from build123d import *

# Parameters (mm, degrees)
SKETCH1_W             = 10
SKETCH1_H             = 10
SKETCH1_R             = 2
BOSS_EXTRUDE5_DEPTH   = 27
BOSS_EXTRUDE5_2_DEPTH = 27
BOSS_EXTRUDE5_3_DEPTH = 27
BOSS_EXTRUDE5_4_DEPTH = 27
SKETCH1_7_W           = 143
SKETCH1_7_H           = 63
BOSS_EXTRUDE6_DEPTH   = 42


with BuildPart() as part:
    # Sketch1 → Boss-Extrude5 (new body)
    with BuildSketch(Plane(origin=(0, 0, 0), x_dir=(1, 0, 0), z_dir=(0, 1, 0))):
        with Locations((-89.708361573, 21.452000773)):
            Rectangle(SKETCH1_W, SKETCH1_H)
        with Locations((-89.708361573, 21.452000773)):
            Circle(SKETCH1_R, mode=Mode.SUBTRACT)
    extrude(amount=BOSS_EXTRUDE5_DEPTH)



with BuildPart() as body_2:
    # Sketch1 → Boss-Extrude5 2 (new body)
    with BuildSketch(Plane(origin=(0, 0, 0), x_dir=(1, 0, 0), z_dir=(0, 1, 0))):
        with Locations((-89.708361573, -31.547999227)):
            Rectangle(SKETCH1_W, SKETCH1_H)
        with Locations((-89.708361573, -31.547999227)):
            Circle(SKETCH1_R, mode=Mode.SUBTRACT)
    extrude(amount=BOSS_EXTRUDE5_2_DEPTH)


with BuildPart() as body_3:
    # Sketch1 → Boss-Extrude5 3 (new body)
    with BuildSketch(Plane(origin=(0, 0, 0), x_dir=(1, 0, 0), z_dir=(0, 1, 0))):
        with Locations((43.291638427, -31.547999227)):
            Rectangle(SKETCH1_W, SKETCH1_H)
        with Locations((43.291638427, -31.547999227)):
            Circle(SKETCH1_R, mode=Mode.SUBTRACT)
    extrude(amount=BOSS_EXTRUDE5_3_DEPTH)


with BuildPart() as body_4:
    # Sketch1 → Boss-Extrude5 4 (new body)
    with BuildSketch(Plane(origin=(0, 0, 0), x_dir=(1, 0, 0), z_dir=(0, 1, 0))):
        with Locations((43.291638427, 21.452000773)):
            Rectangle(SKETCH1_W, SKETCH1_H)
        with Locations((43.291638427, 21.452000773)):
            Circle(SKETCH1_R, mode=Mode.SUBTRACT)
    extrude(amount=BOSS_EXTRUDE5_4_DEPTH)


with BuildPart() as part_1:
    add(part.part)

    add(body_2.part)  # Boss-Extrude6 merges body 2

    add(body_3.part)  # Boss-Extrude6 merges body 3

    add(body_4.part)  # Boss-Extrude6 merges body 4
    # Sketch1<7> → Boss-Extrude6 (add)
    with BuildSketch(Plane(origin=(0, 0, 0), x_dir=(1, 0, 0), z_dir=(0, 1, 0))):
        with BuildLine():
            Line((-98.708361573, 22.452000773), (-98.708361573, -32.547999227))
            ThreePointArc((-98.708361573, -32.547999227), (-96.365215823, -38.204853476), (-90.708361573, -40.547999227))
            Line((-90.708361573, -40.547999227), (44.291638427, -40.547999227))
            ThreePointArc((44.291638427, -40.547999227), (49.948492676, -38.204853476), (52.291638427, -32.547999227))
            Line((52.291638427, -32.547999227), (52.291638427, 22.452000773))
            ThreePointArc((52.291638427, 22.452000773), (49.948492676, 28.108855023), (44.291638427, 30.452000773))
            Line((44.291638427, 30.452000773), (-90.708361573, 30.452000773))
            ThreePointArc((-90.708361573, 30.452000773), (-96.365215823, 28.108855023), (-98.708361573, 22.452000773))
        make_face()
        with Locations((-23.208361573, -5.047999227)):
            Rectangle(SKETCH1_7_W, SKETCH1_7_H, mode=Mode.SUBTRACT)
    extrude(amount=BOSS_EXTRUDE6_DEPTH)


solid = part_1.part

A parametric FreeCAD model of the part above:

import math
import FreeCAD as App
import Part
import Sketcher

V = App.Vector
Q = App.Units.Quantity

doc = App.newDocument("Part")
params = doc.addObject("Spreadsheet::Sheet", "Params")
for row, (alias, value) in enumerate([
    ("sketch1_diameter", "4 mm"),
    ("sketch1_width", "10 mm"),
    ("pad1_length", "27 mm"),
    ("sketch2_diameter", "4 mm"),
    ("sketch2_width", "10 mm"),
    ("pad2_length", "27 mm"),
    ("sketch3_diameter", "4 mm"),
    ("sketch3_width", "10 mm"),
    ("pad3_length", "27 mm"),
    ("sketch4_diameter", "4 mm"),
    ("sketch4_width", "10 mm"),
    ("pad4_length", "27 mm"),
    ("sketch5_radius", "8 mm"),
    ("sketch5_width", "135 mm"),
    ("sketch5_width2", "143 mm"),
    ("sketch5_height", "55 mm"),
    ("sketch5_height2", "63 mm"),
    ("pad5_length", "42 mm"),
], start=1):
    params.set(f"A{row}", alias)
    params.set(f"B{row}", "=" + value)
    params.setAlias(f"B{row}", alias)

body = doc.addObject("PartDesign::Body", "Body")

sketch1 = doc.addObject("Sketcher::SketchObject", "Sketch")
body.addObject(sketch1)
sketch1.AttachmentSupport = (doc.XZ_Plane, [""])
sketch1.MapMode = "FlatFace"
sketch1.addGeometry(Part.LineSegment(V(-94.7, -26.5, 0), V(-94.7, -16.5, 0)), False)
sketch1.addGeometry(Part.LineSegment(V(-94.7, -16.5, 0), V(-84.7, -16.5, 0)), False)
sketch1.addGeometry(Part.LineSegment(V(-84.7, -16.5, 0), V(-84.7, -26.5, 0)), False)
sketch1.addGeometry(Part.LineSegment(V(-84.7, -26.5, 0), V(-94.7, -26.5, 0)), False)
sketch1.addGeometry(Part.Circle(V(-89.7, -21.5, 0), V(0, 0, 1), 2), False)
sketch1.addConstraint(Sketcher.Constraint("Coincident", 0, 2, 1, 1))
sketch1.addConstraint(Sketcher.Constraint("Coincident", 1, 2, 2, 1))
sketch1.addConstraint(Sketcher.Constraint("Coincident", 2, 2, 3, 1))
sketch1.addConstraint(Sketcher.Constraint("Coincident", 3, 2, 0, 1))
sketch1.addConstraint(Sketcher.Constraint("Vertical", 0))
sketch1.addConstraint(Sketcher.Constraint("Horizontal", 1))
sketch1.addConstraint(Sketcher.Constraint("Vertical", 2))
sketch1.addConstraint(Sketcher.Constraint("Horizontal", 3))
sketch1.addConstraint(Sketcher.Constraint("Equal", 3, 0))
sketch1.addConstraint(Sketcher.Constraint("Diameter", 4, Q("4 mm")))
sketch1.addConstraint(Sketcher.Constraint("DistanceX", 1, 1, 1, 2, Q("10 mm")))
sketch1.addConstraint(Sketcher.Constraint("DistanceX", 0, 2, 4, 3, Q("5 mm")))
sketch1.addConstraint(Sketcher.Constraint("DistanceY", 4, 3, 0, 2, Q("5 mm")))
sketch1.addConstraint(Sketcher.Constraint("DistanceY", 4, 3, -1, 1, Q("21.452001 mm")))
sketch1.addConstraint(Sketcher.Constraint("DistanceX", 4, 3, -1, 1, Q("89.708362 mm")))
sketch1.setExpression("Constraints[9]", "Params.sketch1_diameter")
sketch1.setExpression("Constraints[10]", "Params.sketch1_width")
pad1 = doc.addObject("PartDesign::Pad", "Pad")
body.addObject(pad1)
pad1.Profile = sketch1
pad1.setExpression("Length", "Params.pad1_length")
pad1.Reversed = True
body2 = doc.addObject("PartDesign::Body", "Body001")

sketch2 = doc.addObject("Sketcher::SketchObject", "Sketch001")
body2.addObject(sketch2)
sketch2.AttachmentSupport = (doc.getObject("XZ_Plane001"), [""])
sketch2.MapMode = "FlatFace"
sketch2.addGeometry(Part.LineSegment(V(-94.7, 26.5, 0), V(-94.7, 36.5, 0)), False)
sketch2.addGeometry(Part.LineSegment(V(-94.7, 36.5, 0), V(-84.7, 36.5, 0)), False)
sketch2.addGeometry(Part.LineSegment(V(-84.7, 36.5, 0), V(-84.7, 26.5, 0)), False)
sketch2.addGeometry(Part.LineSegment(V(-84.7, 26.5, 0), V(-94.7, 26.5, 0)), False)
sketch2.addGeometry(Part.Circle(V(-89.7, 31.5, 0), V(0, 0, 1), 2), False)
sketch2.addConstraint(Sketcher.Constraint("Coincident", 0, 2, 1, 1))
sketch2.addConstraint(Sketcher.Constraint("Coincident", 1, 2, 2, 1))
sketch2.addConstraint(Sketcher.Constraint("Coincident", 2, 2, 3, 1))
sketch2.addConstraint(Sketcher.Constraint("Coincident", 3, 2, 0, 1))
sketch2.addConstraint(Sketcher.Constraint("Vertical", 0))
sketch2.addConstraint(Sketcher.Constraint("Horizontal", 1))
sketch2.addConstraint(Sketcher.Constraint("Vertical", 2))
sketch2.addConstraint(Sketcher.Constraint("Horizontal", 3))
sketch2.addConstraint(Sketcher.Constraint("Equal", 3, 0))
sketch2.addConstraint(Sketcher.Constraint("Diameter", 4, Q("4 mm")))
sketch2.addConstraint(Sketcher.Constraint("DistanceX", 1, 1, 1, 2, Q("10 mm")))
sketch2.addConstraint(Sketcher.Constraint("DistanceX", 0, 2, 4, 3, Q("5 mm")))
sketch2.addConstraint(Sketcher.Constraint("DistanceY", 4, 3, 0, 2, Q("5 mm")))
sketch2.addConstraint(Sketcher.Constraint("DistanceY", -1, 1, 4, 3, Q("31.547999 mm")))
sketch2.addConstraint(Sketcher.Constraint("DistanceX", 4, 3, -1, 1, Q("89.708362 mm")))
sketch2.setExpression("Constraints[9]", "Params.sketch2_diameter")
sketch2.setExpression("Constraints[10]", "Params.sketch2_width")
pad2 = doc.addObject("PartDesign::Pad", "Pad001")
body2.addObject(pad2)
pad2.Profile = sketch2
pad2.setExpression("Length", "Params.pad2_length")
pad2.Reversed = True
body3 = doc.addObject("PartDesign::Body", "Body002")

sketch3 = doc.addObject("Sketcher::SketchObject", "Sketch002")
body3.addObject(sketch3)
sketch3.AttachmentSupport = (doc.getObject("XZ_Plane002"), [""])
sketch3.MapMode = "FlatFace"
sketch3.addGeometry(Part.LineSegment(V(38.3, 26.5, 0), V(38.3, 36.5, 0)), False)
sketch3.addGeometry(Part.LineSegment(V(38.3, 36.5, 0), V(48.3, 36.5, 0)), False)
sketch3.addGeometry(Part.LineSegment(V(48.3, 36.5, 0), V(48.3, 26.5, 0)), False)
sketch3.addGeometry(Part.LineSegment(V(48.3, 26.5, 0), V(38.3, 26.5, 0)), False)
sketch3.addGeometry(Part.Circle(V(43.3, 31.5, 0), V(0, 0, 1), 2), False)
sketch3.addConstraint(Sketcher.Constraint("Coincident", 0, 2, 1, 1))
sketch3.addConstraint(Sketcher.Constraint("Coincident", 1, 2, 2, 1))
sketch3.addConstraint(Sketcher.Constraint("Coincident", 2, 2, 3, 1))
sketch3.addConstraint(Sketcher.Constraint("Coincident", 3, 2, 0, 1))
sketch3.addConstraint(Sketcher.Constraint("Vertical", 0))
sketch3.addConstraint(Sketcher.Constraint("Horizontal", 1))
sketch3.addConstraint(Sketcher.Constraint("Vertical", 2))
sketch3.addConstraint(Sketcher.Constraint("Horizontal", 3))
sketch3.addConstraint(Sketcher.Constraint("Equal", 3, 0))
sketch3.addConstraint(Sketcher.Constraint("Diameter", 4, Q("4 mm")))
sketch3.addConstraint(Sketcher.Constraint("DistanceX", 1, 1, 1, 2, Q("10 mm")))
sketch3.addConstraint(Sketcher.Constraint("DistanceX", 0, 2, 4, 3, Q("5 mm")))
sketch3.addConstraint(Sketcher.Constraint("DistanceY", 4, 3, 0, 2, Q("5 mm")))
sketch3.addConstraint(Sketcher.Constraint("DistanceY", -1, 1, 4, 3, Q("31.547999 mm")))
sketch3.addConstraint(Sketcher.Constraint("DistanceX", -1, 1, 4, 3, Q("43.291638 mm")))
sketch3.setExpression("Constraints[9]", "Params.sketch3_diameter")
sketch3.setExpression("Constraints[10]", "Params.sketch3_width")
pad3 = doc.addObject("PartDesign::Pad", "Pad002")
body3.addObject(pad3)
pad3.Profile = sketch3
pad3.setExpression("Length", "Params.pad3_length")
pad3.Reversed = True
body4 = doc.addObject("PartDesign::Body", "Body003")

sketch4 = doc.addObject("Sketcher::SketchObject", "Sketch003")
body4.addObject(sketch4)
sketch4.AttachmentSupport = (doc.getObject("XZ_Plane003"), [""])
sketch4.MapMode = "FlatFace"
sketch4.addGeometry(Part.LineSegment(V(38.3, -26.5, 0), V(38.3, -16.5, 0)), False)
sketch4.addGeometry(Part.LineSegment(V(38.3, -16.5, 0), V(48.3, -16.5, 0)), False)
sketch4.addGeometry(Part.LineSegment(V(48.3, -16.5, 0), V(48.3, -26.5, 0)), False)
sketch4.addGeometry(Part.LineSegment(V(48.3, -26.5, 0), V(38.3, -26.5, 0)), False)
sketch4.addGeometry(Part.Circle(V(43.3, -21.5, 0), V(0, 0, 1), 2), False)
sketch4.addConstraint(Sketcher.Constraint("Coincident", 0, 2, 1, 1))
sketch4.addConstraint(Sketcher.Constraint("Coincident", 1, 2, 2, 1))
sketch4.addConstraint(Sketcher.Constraint("Coincident", 2, 2, 3, 1))
sketch4.addConstraint(Sketcher.Constraint("Coincident", 3, 2, 0, 1))
sketch4.addConstraint(Sketcher.Constraint("Vertical", 0))
sketch4.addConstraint(Sketcher.Constraint("Horizontal", 1))
sketch4.addConstraint(Sketcher.Constraint("Vertical", 2))
sketch4.addConstraint(Sketcher.Constraint("Horizontal", 3))
sketch4.addConstraint(Sketcher.Constraint("Equal", 3, 0))
sketch4.addConstraint(Sketcher.Constraint("Diameter", 4, Q("4 mm")))
sketch4.addConstraint(Sketcher.Constraint("DistanceX", 1, 1, 1, 2, Q("10 mm")))
sketch4.addConstraint(Sketcher.Constraint("DistanceX", 0, 2, 4, 3, Q("5 mm")))
sketch4.addConstraint(Sketcher.Constraint("DistanceY", 4, 3, 0, 2, Q("5 mm")))
sketch4.addConstraint(Sketcher.Constraint("DistanceY", 4, 3, -1, 1, Q("21.452001 mm")))
sketch4.addConstraint(Sketcher.Constraint("DistanceX", -1, 1, 4, 3, Q("43.291638 mm")))
sketch4.setExpression("Constraints[9]", "Params.sketch4_diameter")
sketch4.setExpression("Constraints[10]", "Params.sketch4_width")
pad4 = doc.addObject("PartDesign::Pad", "Pad003")
body4.addObject(pad4)
pad4.Profile = sketch4
pad4.setExpression("Length", "Params.pad4_length")
pad4.Reversed = True
body.AllowCompound = True
doc.recompute()

boolean = doc.addObject("PartDesign::Boolean", "Boolean")
body.addObject(boolean)
boolean.Type = "Fuse"
boolean.addObjects([body2])
doc.recompute()

boolean2 = doc.addObject("PartDesign::Boolean", "Boolean001")
body.addObject(boolean2)
boolean2.Type = "Fuse"
boolean2.addObjects([body3])
doc.recompute()

boolean3 = doc.addObject("PartDesign::Boolean", "Boolean002")
body.addObject(boolean3)
boolean3.Type = "Fuse"
boolean3.addObjects([body4])

sketch5 = doc.addObject("Sketcher::SketchObject", "Sketch004")
body.addObject(sketch5)
sketch5.AttachmentSupport = (doc.XZ_Plane, [""])
sketch5.MapMode = "FlatFace"
sketch5.addGeometry(Part.LineSegment(V(-99, -22, 0), V(-99, 33, 0)), False)
sketch5.addGeometry(Part.ArcOfCircle(Part.Circle(V(-91, 33, 0), V(0, 0, 1), 8), math.radians(90), math.radians(180)), False)
sketch5.addGeometry(Part.LineSegment(V(-91, 41, 0), V(44, 41, 0)), False)
sketch5.addGeometry(Part.ArcOfCircle(Part.Circle(V(44, 33, 0), V(0, 0, 1), 8), math.radians(0), math.radians(90)), False)
sketch5.addGeometry(Part.LineSegment(V(52, 33, 0), V(52, -22, 0)), False)
sketch5.addGeometry(Part.ArcOfCircle(Part.Circle(V(44, -22, 0), V(0, 0, 1), 8), math.radians(-90), math.radians(0)), False)
sketch5.addGeometry(Part.LineSegment(V(44, -30, 0), V(-91, -30, 0)), False)
sketch5.addGeometry(Part.ArcOfCircle(Part.Circle(V(-91, -22, 0), V(0, 0, 1), 8), math.radians(180), math.radians(270)), False)
sketch5.addGeometry(Part.LineSegment(V(48, 37, 0), V(-95, 37, 0)), False)
sketch5.addGeometry(Part.LineSegment(V(-95, 37, 0), V(-95, -26, 0)), False)
sketch5.addGeometry(Part.LineSegment(V(-95, -26, 0), V(48, -26, 0)), False)
sketch5.addGeometry(Part.LineSegment(V(48, -26, 0), V(48, 37, 0)), False)
sketch5.addConstraint(Sketcher.Constraint("Tangent", 0, 2, 1, 2))
sketch5.addConstraint(Sketcher.Constraint("Tangent", 1, 1, 2, 1))
sketch5.addConstraint(Sketcher.Constraint("Tangent", 2, 2, 3, 2))
sketch5.addConstraint(Sketcher.Constraint("Tangent", 3, 1, 4, 1))
sketch5.addConstraint(Sketcher.Constraint("Tangent", 4, 2, 5, 2))
sketch5.addConstraint(Sketcher.Constraint("Tangent", 5, 1, 6, 1))
sketch5.addConstraint(Sketcher.Constraint("Tangent", 6, 2, 7, 2))
sketch5.addConstraint(Sketcher.Constraint("Tangent", 7, 1, 0, 1))
sketch5.addConstraint(Sketcher.Constraint("Coincident", 8, 2, 9, 1))
sketch5.addConstraint(Sketcher.Constraint("Coincident", 9, 2, 10, 1))
sketch5.addConstraint(Sketcher.Constraint("Coincident", 10, 2, 11, 1))
sketch5.addConstraint(Sketcher.Constraint("Coincident", 11, 2, 8, 1))
sketch5.addConstraint(Sketcher.Constraint("Vertical", 0))
sketch5.addConstraint(Sketcher.Constraint("Horizontal", 2))
sketch5.addConstraint(Sketcher.Constraint("Vertical", 4))
sketch5.addConstraint(Sketcher.Constraint("Horizontal", 6))
sketch5.addConstraint(Sketcher.Constraint("Horizontal", 8))
sketch5.addConstraint(Sketcher.Constraint("Vertical", 9))
sketch5.addConstraint(Sketcher.Constraint("Horizontal", 10))
sketch5.addConstraint(Sketcher.Constraint("Vertical", 11))
sketch5.addConstraint(Sketcher.Constraint("Equal", 1, 3))
sketch5.addConstraint(Sketcher.Constraint("Equal", 3, 5))
sketch5.addConstraint(Sketcher.Constraint("Equal", 5, 7))
sketch5.addConstraint(Sketcher.Constraint("Radius", 1, Q("8 mm")))
sketch5.addConstraint(Sketcher.Constraint("DistanceX", 2, 1, 2, 2, Q("135 mm")))
sketch5.addConstraint(Sketcher.Constraint("DistanceX", 8, 2, 8, 1, Q("143 mm")))
sketch5.addConstraint(Sketcher.Constraint("DistanceY", 0, 1, 0, 2, Q("55 mm")))
sketch5.addConstraint(Sketcher.Constraint("DistanceY", 9, 2, 9, 1, Q("63 mm")))
sketch5.addConstraint(Sketcher.Constraint("DistanceX", 8, 2, 1, 3, Q("4 mm")))
sketch5.addConstraint(Sketcher.Constraint("DistanceY", 1, 3, 8, 2, Q("4 mm")))
sketch5.addConstraint(Sketcher.Constraint("DistanceY", -1, 1, 1, 3, Q("32.547999 mm")))
sketch5.addConstraint(Sketcher.Constraint("DistanceX", 1, 3, -1, 1, Q("90.708362 mm")))
sketch5.setExpression("Constraints[23]", "Params.sketch5_radius")
sketch5.setExpression("Constraints[24]", "Params.sketch5_width")
sketch5.setExpression("Constraints[25]", "Params.sketch5_width2")
sketch5.setExpression("Constraints[26]", "Params.sketch5_height")
sketch5.setExpression("Constraints[27]", "Params.sketch5_height2")
pad5 = doc.addObject("PartDesign::Pad", "Pad004")
body.addObject(pad5)
pad5.Profile = sketch5
pad5.setExpression("Length", "Params.pad5_length")
pad5.Reversed = True

doc.recompute()
